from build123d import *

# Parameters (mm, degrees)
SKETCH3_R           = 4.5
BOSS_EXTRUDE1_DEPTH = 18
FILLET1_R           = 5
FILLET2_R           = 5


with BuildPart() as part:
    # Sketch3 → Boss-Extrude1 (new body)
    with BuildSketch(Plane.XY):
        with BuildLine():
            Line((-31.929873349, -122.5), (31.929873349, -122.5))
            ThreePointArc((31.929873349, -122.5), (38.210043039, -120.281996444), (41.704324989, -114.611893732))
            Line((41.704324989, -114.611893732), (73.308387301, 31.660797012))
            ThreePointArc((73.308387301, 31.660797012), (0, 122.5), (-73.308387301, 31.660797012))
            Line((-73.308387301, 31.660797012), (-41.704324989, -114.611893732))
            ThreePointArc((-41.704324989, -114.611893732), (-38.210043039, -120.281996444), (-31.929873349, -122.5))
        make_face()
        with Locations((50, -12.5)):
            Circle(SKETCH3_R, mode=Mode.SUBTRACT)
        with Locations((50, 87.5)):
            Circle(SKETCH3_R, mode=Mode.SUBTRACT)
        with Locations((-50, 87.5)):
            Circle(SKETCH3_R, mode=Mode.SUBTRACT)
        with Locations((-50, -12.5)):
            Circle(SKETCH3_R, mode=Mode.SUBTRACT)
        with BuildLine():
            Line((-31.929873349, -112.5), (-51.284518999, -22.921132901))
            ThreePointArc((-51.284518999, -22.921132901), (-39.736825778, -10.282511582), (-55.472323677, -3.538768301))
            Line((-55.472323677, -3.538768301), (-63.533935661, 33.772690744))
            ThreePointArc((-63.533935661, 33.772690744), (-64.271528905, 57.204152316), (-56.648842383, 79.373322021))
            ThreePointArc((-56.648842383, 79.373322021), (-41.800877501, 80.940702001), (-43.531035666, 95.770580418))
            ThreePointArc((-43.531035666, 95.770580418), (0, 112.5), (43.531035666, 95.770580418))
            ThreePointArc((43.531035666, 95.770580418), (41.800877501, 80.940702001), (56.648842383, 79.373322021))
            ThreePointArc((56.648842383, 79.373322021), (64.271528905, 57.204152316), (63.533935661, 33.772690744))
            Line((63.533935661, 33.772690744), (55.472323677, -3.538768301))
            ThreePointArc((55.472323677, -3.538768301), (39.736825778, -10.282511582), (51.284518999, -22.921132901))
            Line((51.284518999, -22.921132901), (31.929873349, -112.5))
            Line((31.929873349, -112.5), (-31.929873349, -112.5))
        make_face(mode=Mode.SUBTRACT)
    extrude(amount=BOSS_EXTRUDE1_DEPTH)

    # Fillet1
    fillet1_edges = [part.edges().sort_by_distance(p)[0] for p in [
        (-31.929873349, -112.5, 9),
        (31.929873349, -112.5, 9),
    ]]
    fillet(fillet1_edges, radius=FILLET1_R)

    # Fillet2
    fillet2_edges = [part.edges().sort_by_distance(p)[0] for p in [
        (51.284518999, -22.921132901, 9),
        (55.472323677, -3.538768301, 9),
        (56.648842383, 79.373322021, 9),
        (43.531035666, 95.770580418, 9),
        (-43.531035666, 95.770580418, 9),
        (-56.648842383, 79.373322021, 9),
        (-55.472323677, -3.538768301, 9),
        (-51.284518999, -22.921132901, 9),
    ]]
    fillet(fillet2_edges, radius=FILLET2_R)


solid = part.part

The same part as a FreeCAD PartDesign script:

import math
import FreeCAD as App
import Part
import Sketcher
Q = App.Units.Quantity


def edges_at(feature, points):
    """Names of the edges that pass closest to the given points."""
    edges = feature.Shape.Edges
    near = lambda p: min(range(len(edges)), key=lambda i: edges[i].distToShape(Part.Vertex(*p))[0])
    return sorted({f"Edge{near(p) + 1}" for p in points})

doc = App.newDocument("Part")
params = doc.addObject("Spreadsheet::Sheet", "Params")
for row, (alias, value) in enumerate([
    ("sketch1_diameter", "9 mm"),
    ("sketch1_radius", "10 mm"),
    ("sketch1_radius2", "75 mm"),
    ("sketch1_radius3", "65 mm"),
    ("sketch1_radius4", "10.5 mm"),
    ("pad1_length", "18 mm"),
    ("fillet_radius", "5 mm"),
    ("fillet2_radius", "5 mm"),
], start=1):
    params.set(f"A{row}", alias)
    params.set(f"B{row}", "=" + value)
    params.setAlias(f"B{row}", alias)

body = doc.addObject("PartDesign::Body", "Body")

# Sketch on XY plane
sketch1 = body.newObject("Sketcher::SketchObject", "Sketch")
sketch1.AttachmentSupport = (doc.getObject("XY_Plane"), [""])
sketch1.MapMode = "FlatFace"
sketch1.addGeometry([
    Part.LineSegment(App.Vector(-31.9, -122.5, 0), App.Vector(31.9, -122.5, 0)),  # 0
    Part.ArcOfCircle(Part.Circle(App.Vector(31.9, -112.5, 0), App.Vector(0, 0, 1), 10), math.radians(-90), math.radians(-12)),  # 1
    Part.LineSegment(App.Vector(41.7, -114.6, 0), App.Vector(73.3, 31.7, 0)),  # 2
    Part.ArcOfCircle(Part.Circle(App.Vector(0, 47.5, 0), App.Vector(0, 0, 1), 75), math.radians(-12), math.radians(192)),  # 3
    Part.LineSegment(App.Vector(-73.3, 31.7, 0), App.Vector(-41.7, -114.6, 0)),  # 4
    Part.ArcOfCircle(Part.Circle(App.Vector(-31.9, -112.5, 0), App.Vector(0, 0, 1), 10), math.radians(-168), math.radians(-90)),  # 5
    Part.Circle(App.Vector(-50, -12.5, 0), App.Vector(0, 0, 1), 4.5),  # 6
    Part.LineSegment(App.Vector(31.9, -112.5, 0), App.Vector(-31.9, -112.5, 0)),  # 7
    Part.LineSegment(App.Vector(-31.9, -112.5, 0), App.Vector(-51.3, -22.9, 0)),  # 8
    Part.ArcOfCircle(Part.Circle(App.Vector(-50, -12.5, 0), App.Vector(0, 0, 1), 10.5), math.radians(-97), math.radians(121)),  # 9
    Part.LineSegment(App.Vector(-55.5, -3.5, 0), App.Vector(-63.5, 33.8, 0)),  # 10
    Part.ArcOfCircle(Part.Circle(App.Vector(0, 47.5, 0), App.Vector(0, 0, 1), 65), math.radians(151), math.radians(192)),  # 11
    Part.ArcOfCircle(Part.Circle(App.Vector(-50, 87.5, 0), App.Vector(0, 0, 1), 10.5), math.radians(-129), math.radians(52)),  # 12
    Part.ArcOfCircle(Part.Circle(App.Vector(0, 47.5, 0), App.Vector(0, 0, 1), 65), math.radians(48), math.radians(132)),  # 13
    Part.ArcOfCircle(Part.Circle(App.Vector(50, 87.5, 0), App.Vector(0, 0, 1), 10.5), math.radians(128), math.radians(309)),  # 14
    Part.ArcOfCircle(Part.Circle(App.Vector(0, 47.5, 0), App.Vector(0, 0, 1), 65), math.radians(-12), math.radians(29)),  # 15
    Part.LineSegment(App.Vector(63.5, 33.8, 0), App.Vector(55.5, -3.5, 0)),  # 16
    Part.ArcOfCircle(Part.Circle(App.Vector(50, -12.5, 0), App.Vector(0, 0, 1), 10.5), math.radians(59), math.radians(277)),  # 17
    Part.LineSegment(App.Vector(51.3, -22.9, 0), App.Vector(31.9, -112.5, 0)),  # 18
    Part.Circle(App.Vector(50, -12.5, 0), App.Vector(0, 0, 1), 4.5),  # 19
    Part.Circle(App.Vector(-50, 87.5, 0), App.Vector(0, 0, 1), 4.5),  # 20
    Part.Circle(App.Vector(50, 87.5, 0), App.Vector(0, 0, 1), 4.5),  # 21
], False)
sketch1.addConstraint([
    Sketcher.Constraint("Tangent", 0, 2, 1, 1),
    Sketcher.Constraint("Tangent", 1, 2, 2, 1),
    Sketcher.Constraint("Tangent", 2, 2, 3, 1),
    Sketcher.Constraint("Tangent", 3, 2, 4, 1),
    Sketcher.Constraint("Tangent", 4, 2, 5, 1),
    Sketcher.Constraint("Tangent", 5, 2, 0, 1),
    Sketcher.Constraint("Coincident", 7, 2, 8, 1),
    Sketcher.Constraint("Coincident", 8, 2, 9, 1),
    Sketcher.Constraint("Coincident", 9, 2, 10, 1),
    Sketcher.Constraint("Tangent", 10, 2, 11, 2),
    Sketcher.Constraint("Coincident", 11, 1, 12, 1),
    Sketcher.Constraint("Coincident", 12, 2, 13, 2),
    Sketcher.Constraint("Coincident", 13, 1, 14, 1),
    Sketcher.Constraint("Coincident", 14, 2, 15, 2),
    Sketcher.Constraint("Tangent", 15, 1, 16, 1),
    Sketcher.Constraint("Coincident", 16, 2, 17, 1),
    Sketcher.Constraint("Coincident", 17, 2, 18, 1),
    Sketcher.Constraint("Coincident", 18, 2, 7, 1),
    Sketcher.Constraint("Horizontal", 0),
    Sketcher.Constraint("Horizontal", 7),
    Sketcher.Constraint("Coincident", 9, 3, 6, 3),
    Sketcher.Constraint("Coincident", 11, 3, 3, 3),
    Sketcher.Constraint("Coincident", 13, 3, 3, 3),
    Sketcher.Constraint("Coincident", 15, 3, 3, 3),
    Sketcher.Constraint("Coincident", 19, 3, 17, 3),
    Sketcher.Constraint("Coincident", 20, 3, 12, 3),
    Sketcher.Constraint("Coincident", 21, 3, 14, 3),
    Sketcher.Constraint("Coincident", 7, 2, 5, 3),
    Sketcher.Constraint("Coincident", 18, 2, 1, 3),
    Sketcher.Constraint("Equal", 9, 12),
    Sketcher.Constraint("Equal", 11, 13),
    Sketcher.Constraint("Equal", 12, 14),
    Sketcher.Constraint("Equal", 13, 15),
    Sketcher.Constraint("Equal", 14, 17),
    Sketcher.Constraint("Equal", 6, 19),
    Sketcher.Constraint("Equal", 19, 20),
    Sketcher.Constraint("Equal", 20, 21),
    Sketcher.Constraint("Symmetric", 12, 3, 14, 3, -2),
    Sketcher.Constraint("Symmetric", 6, 3, 17, 3, -2),
    Sketcher.Constraint("Symmetric", 2, 2, 3, 2, -2),
    Sketcher.Constraint("Parallel", 4, 8),
    Sketcher.Constraint("Parallel", 8, 10),
    Sketcher.Constraint("Parallel", 2, 16),
    Sketcher.Constraint("Parallel", 16, 18),
    Sketcher.Constraint("Vertical", 9, 3, 12, 3),
    Sketcher.Constraint("Diameter", 6, Q("9 mm")),
    Sketcher.Constraint("Radius", 1, Q("10 mm")),
    Sketcher.Constraint("Radius", 3, Q("75 mm")),
    Sketcher.Constraint("Radius", 11, Q("65 mm")),
    Sketcher.Constraint("Radius", 9, Q("10.5 mm")),
    Sketcher.Constraint("DistanceX", 6, 3, -1, 1, Q("50 mm")),
    Sketcher.Constraint("DistanceY", 1, 3, 3, 3, Q("160 mm")),
    Sketcher.Constraint("DistanceY", 6, 3, 3, 3, Q("60 mm")),
    Sketcher.Constraint("DistanceY", 3, 3, 12, 3, Q("40 mm")),
    Sketcher.Constraint("DistanceY", 1, 3, -1, 1, Q("112.5 mm")),
    Sketcher.Constraint("DistanceX", 5, 3, 1, 2, Q("73.634198 mm")),
])
sketch1.setExpression("Constraints[45]", "Params.sketch1_diameter")
sketch1.setExpression("Constraints[46]", "Params.sketch1_radius")
sketch1.setExpression("Constraints[47]", "Params.sketch1_radius2")
sketch1.setExpression("Constraints[48]", "Params.sketch1_radius3")
sketch1.setExpression("Constraints[49]", "Params.sketch1_radius4")
pad1 = body.newObject("PartDesign::Pad", "Pad")
pad1.Profile = sketch1
pad1.setExpression("Length", "Params.pad1_length")
doc.recompute()

fillet = body.newObject("PartDesign::Fillet", "Fillet")
fillet.Base = (pad1, edges_at(pad1, [(-31.93, -112.5, 9), (31.93, -112.5, 9)]))
fillet.setExpression("Radius", "Params.fillet_radius")
doc.recompute()

fillet2 = body.newObject("PartDesign::Fillet", "Fillet001")
fillet2.Base = (fillet, edges_at(fillet, [
    (51.285, -22.921, 9),
    (55.472, -3.539, 9),
    (56.649, 79.373, 9),
    (43.531, 95.771, 9),
    (-43.531, 95.771, 9),
    (-56.649, 79.373, 9),
    (-55.472, -3.539, 9),
    (-51.285, -22.921, 9),
]))
fillet2.setExpression("Radius", "Params.fillet2_radius")

doc.recompute()
